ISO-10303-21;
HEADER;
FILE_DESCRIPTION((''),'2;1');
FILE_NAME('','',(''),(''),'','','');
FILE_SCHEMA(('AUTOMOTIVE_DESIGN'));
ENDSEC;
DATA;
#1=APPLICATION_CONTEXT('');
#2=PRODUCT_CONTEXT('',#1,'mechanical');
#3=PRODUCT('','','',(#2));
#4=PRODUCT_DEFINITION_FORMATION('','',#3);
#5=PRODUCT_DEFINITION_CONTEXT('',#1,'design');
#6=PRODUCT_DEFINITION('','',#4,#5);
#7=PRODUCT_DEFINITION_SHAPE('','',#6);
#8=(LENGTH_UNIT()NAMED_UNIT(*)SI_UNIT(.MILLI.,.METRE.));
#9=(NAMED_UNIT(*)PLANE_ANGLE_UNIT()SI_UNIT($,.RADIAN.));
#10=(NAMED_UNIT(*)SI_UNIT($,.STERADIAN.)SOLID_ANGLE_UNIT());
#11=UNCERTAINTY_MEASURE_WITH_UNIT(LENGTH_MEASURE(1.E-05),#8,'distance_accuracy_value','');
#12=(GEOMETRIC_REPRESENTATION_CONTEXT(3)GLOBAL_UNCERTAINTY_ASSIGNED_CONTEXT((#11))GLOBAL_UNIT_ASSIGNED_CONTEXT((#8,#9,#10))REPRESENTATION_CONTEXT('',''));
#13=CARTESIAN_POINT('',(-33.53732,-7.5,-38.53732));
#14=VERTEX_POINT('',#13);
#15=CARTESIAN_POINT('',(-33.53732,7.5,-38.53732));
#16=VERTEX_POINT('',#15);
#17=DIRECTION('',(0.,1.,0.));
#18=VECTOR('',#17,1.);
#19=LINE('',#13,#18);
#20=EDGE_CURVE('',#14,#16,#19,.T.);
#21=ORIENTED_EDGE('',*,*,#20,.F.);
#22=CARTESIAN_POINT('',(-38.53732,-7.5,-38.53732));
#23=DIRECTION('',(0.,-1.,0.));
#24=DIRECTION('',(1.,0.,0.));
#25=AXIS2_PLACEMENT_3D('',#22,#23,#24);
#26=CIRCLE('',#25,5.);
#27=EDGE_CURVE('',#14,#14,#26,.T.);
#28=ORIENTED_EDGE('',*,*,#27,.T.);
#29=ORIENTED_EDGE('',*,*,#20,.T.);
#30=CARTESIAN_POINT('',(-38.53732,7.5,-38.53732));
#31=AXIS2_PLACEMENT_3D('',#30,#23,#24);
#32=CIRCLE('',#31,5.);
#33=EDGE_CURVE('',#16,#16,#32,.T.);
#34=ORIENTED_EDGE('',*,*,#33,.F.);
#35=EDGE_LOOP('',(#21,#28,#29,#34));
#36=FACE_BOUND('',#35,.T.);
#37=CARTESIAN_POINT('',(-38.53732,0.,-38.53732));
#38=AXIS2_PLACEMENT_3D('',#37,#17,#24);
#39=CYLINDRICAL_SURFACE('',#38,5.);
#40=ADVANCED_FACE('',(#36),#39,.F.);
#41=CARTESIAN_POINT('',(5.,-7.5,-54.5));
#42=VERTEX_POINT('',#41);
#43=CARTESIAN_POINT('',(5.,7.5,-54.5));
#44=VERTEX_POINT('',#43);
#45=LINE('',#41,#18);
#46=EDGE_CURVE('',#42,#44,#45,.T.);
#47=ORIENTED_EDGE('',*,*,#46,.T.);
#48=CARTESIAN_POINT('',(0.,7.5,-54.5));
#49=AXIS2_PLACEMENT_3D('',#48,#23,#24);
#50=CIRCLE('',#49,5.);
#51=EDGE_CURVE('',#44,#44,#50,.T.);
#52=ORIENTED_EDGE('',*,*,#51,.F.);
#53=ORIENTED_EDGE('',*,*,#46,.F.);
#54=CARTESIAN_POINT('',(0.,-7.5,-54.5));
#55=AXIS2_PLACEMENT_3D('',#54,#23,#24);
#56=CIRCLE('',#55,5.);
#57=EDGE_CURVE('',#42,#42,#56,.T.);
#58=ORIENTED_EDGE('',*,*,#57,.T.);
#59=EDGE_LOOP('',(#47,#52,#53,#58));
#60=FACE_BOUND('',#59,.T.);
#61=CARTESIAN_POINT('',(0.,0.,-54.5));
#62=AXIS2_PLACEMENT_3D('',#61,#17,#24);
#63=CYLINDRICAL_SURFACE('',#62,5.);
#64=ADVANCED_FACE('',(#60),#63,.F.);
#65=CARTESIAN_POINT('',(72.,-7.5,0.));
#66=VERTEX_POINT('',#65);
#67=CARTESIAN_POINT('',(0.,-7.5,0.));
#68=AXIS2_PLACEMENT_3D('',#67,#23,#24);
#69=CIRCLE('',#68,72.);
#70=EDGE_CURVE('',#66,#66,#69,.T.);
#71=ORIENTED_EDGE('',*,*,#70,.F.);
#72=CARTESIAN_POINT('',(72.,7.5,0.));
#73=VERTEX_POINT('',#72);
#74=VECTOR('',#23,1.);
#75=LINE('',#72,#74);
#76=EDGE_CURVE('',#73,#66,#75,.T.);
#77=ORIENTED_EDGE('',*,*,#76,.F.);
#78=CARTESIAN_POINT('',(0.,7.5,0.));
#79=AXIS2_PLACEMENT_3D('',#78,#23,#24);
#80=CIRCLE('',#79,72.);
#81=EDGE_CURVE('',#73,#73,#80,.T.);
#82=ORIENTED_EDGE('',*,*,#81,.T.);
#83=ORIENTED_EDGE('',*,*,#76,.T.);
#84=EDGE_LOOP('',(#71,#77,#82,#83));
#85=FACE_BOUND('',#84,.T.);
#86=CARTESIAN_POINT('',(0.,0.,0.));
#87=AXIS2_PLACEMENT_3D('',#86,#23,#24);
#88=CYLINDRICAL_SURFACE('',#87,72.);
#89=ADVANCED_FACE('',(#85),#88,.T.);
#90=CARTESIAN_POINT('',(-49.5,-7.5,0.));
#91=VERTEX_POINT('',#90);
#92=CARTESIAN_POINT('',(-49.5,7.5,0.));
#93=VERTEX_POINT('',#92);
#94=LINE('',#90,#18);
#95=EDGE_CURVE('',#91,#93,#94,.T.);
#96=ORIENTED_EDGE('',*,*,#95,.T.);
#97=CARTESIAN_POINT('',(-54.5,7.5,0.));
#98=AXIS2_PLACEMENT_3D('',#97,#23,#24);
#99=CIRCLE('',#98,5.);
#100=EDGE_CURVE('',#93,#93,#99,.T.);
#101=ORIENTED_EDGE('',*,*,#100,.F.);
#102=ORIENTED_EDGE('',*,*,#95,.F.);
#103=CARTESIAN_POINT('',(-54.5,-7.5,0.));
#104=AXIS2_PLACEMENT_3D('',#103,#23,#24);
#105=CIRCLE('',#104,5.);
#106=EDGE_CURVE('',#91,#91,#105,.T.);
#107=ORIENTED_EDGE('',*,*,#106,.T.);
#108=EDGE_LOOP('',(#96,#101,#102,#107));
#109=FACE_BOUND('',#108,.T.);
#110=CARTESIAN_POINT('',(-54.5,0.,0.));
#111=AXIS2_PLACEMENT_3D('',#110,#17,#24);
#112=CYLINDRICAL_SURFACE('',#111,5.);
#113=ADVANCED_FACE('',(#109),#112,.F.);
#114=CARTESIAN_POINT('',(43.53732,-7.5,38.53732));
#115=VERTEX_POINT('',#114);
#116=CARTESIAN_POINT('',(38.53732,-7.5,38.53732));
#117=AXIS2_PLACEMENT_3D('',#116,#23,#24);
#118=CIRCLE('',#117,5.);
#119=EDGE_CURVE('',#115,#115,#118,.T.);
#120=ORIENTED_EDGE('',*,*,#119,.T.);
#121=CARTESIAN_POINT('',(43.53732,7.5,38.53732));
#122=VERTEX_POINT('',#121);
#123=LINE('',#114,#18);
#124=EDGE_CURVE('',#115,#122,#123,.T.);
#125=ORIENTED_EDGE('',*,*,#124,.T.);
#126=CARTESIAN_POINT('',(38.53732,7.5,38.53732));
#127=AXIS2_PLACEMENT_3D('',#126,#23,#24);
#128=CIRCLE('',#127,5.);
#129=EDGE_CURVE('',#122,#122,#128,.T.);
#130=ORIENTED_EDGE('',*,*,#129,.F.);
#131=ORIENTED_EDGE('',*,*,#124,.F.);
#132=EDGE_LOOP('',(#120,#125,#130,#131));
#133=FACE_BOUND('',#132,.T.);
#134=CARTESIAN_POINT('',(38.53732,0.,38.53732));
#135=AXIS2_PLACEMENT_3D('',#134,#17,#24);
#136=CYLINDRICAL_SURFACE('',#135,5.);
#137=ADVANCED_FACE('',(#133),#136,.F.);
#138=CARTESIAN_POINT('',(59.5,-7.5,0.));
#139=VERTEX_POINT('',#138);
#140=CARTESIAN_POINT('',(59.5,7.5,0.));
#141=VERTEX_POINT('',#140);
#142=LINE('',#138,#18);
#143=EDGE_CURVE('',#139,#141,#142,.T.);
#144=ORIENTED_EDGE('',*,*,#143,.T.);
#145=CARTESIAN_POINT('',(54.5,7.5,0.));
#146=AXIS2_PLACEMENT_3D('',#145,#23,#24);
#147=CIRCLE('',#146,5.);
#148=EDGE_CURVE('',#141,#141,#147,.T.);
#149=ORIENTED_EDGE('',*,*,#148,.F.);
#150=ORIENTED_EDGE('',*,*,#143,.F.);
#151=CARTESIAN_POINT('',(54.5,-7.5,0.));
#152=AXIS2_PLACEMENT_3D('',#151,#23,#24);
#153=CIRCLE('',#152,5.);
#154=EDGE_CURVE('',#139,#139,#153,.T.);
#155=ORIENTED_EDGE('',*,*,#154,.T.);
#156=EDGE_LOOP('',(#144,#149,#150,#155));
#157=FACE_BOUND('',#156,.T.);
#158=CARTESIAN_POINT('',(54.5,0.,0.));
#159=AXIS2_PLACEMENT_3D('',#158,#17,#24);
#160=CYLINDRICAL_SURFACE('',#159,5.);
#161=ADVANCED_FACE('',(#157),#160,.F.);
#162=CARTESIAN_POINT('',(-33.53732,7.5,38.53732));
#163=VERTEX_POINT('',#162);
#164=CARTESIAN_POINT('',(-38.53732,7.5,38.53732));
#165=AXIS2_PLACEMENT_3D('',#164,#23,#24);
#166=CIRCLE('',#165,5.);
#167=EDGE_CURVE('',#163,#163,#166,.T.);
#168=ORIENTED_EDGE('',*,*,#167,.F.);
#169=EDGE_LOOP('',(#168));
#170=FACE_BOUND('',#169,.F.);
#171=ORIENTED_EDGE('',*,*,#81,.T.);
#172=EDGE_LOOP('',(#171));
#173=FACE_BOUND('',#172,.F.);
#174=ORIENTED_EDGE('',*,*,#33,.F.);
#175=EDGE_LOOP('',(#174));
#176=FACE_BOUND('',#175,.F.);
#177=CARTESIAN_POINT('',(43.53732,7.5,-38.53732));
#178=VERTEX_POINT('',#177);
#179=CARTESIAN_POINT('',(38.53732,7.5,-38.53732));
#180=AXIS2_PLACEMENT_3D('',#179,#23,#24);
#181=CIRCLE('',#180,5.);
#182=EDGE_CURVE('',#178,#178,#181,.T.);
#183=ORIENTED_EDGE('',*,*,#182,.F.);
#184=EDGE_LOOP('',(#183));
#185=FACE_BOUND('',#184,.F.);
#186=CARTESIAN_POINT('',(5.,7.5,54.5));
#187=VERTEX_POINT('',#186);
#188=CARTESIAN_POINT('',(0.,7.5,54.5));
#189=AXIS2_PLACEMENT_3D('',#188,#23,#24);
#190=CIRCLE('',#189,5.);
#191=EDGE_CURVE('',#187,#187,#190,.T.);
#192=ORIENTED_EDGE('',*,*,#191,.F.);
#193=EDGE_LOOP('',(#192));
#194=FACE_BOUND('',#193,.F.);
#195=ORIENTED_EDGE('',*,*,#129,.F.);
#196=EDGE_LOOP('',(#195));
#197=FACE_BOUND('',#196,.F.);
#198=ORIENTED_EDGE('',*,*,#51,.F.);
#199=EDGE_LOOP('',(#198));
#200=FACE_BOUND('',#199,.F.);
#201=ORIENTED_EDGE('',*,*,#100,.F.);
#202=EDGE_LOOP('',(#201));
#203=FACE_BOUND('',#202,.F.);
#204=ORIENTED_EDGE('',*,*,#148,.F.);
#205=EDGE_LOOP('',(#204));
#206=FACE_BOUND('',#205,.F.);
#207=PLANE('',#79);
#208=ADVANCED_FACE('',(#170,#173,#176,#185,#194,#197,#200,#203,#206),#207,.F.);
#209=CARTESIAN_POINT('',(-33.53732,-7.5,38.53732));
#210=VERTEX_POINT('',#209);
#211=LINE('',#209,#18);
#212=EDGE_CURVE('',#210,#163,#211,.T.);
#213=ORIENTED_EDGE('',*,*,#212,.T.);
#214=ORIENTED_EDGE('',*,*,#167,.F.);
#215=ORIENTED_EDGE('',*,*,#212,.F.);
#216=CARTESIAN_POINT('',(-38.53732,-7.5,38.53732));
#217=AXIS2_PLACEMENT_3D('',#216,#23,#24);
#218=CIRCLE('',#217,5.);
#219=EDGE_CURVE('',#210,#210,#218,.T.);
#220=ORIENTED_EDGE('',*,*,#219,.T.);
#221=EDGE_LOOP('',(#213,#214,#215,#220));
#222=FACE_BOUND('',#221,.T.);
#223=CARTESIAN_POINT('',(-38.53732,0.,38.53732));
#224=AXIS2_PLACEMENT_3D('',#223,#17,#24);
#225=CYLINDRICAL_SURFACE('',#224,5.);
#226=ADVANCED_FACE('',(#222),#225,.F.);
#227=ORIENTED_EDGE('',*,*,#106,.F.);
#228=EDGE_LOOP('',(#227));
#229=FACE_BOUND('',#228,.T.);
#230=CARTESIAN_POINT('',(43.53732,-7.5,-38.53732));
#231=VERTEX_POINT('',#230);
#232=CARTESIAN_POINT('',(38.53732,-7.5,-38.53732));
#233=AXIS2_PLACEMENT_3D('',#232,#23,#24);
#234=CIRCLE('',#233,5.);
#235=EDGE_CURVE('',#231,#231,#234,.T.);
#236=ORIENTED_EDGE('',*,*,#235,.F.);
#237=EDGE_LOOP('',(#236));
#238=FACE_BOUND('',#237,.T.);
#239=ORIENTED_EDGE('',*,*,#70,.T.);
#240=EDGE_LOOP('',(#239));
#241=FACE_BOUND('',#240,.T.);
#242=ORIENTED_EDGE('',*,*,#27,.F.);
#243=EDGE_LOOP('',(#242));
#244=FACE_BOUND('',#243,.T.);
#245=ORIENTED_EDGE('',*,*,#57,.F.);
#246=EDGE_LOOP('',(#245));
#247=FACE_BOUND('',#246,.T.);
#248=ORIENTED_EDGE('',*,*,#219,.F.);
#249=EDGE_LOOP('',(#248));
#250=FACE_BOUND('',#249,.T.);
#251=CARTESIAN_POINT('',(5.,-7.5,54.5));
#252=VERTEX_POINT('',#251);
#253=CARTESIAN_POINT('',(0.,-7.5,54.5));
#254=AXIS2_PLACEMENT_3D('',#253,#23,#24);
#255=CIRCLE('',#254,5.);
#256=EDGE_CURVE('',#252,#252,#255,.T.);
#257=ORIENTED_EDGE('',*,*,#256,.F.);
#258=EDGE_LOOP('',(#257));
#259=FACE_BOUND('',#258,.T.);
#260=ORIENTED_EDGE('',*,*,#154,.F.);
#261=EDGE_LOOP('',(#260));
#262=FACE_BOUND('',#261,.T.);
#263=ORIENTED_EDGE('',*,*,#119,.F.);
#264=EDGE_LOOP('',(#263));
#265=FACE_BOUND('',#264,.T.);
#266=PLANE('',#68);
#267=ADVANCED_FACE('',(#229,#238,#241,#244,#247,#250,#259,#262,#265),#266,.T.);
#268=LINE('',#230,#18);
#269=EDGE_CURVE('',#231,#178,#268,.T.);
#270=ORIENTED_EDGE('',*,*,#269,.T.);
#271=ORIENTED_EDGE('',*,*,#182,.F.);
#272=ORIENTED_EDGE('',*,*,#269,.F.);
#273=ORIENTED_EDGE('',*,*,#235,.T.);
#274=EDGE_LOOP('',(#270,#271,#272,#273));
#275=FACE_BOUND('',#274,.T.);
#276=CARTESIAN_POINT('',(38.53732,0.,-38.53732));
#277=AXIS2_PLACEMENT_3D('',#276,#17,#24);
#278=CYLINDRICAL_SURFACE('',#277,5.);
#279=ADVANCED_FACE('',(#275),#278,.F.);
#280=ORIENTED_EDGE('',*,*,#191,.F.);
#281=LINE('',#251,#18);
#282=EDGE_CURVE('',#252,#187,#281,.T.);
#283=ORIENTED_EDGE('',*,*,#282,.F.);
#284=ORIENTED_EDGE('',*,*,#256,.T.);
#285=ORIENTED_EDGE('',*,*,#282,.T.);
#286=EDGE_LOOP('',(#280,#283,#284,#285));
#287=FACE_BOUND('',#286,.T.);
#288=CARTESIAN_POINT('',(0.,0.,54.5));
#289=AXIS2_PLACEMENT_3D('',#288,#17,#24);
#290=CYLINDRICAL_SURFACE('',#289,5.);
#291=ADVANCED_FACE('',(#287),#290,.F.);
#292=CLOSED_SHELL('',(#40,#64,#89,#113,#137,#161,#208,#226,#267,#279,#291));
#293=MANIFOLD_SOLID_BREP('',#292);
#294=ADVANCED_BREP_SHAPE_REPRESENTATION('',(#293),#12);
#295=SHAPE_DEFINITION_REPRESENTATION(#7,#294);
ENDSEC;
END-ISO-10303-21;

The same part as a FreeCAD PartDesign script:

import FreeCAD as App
import Part
import Sketcher

V = App.Vector

doc = App.newDocument("Part")
params = doc.addObject("Spreadsheet::Sheet", "Params")
for row, (alias, value) in enumerate([
    ("sketch1_diameter", "144 mm"),
    ("sketch1_diameter2", "10 mm"),
    ("pad1_length", "15 mm"),
], start=1):
    params.set(f"A{row}", alias)
    params.set(f"B{row}", "=" + value)
    params.setAlias(f"B{row}", alias)

body = doc.addObject("PartDesign::Body", "Body")

sketch1 = body.newObject("Sketcher::SketchObject", "Sketch")
sketch1.AttachmentSupport = (doc.getObject("XZ_Plane"), [""])
sketch1.MapMode = "FlatFace"
sketch1.addGeometry(Part.Circle(V(0, 0, 0), V(0, 0, 1), 72), False)
sketch1.addGeometry(Part.Circle(V(-39, -39, 0), V(0, 0, 1), 5), False)
sketch1.addGeometry(Part.Circle(V(0, -54, 0), V(0, 0, 1), 5), False)
sketch1.addGeometry(Part.Circle(V(39, -39, 0), V(0, 0, 1), 5), False)
sketch1.addGeometry(Part.Circle(V(-54, 0, 0), V(0, 0, 1), 5), False)
sketch1.addGeometry(Part.Circle(V(-39, 39, 0), V(0, 0, 1), 5), False)
sketch1.addGeometry(Part.Circle(V(54, 0, 0), V(0, 0, 1), 5), False)
sketch1.addGeometry(Part.Circle(V(0, 54, 0), V(0, 0, 1), 5), False)
sketch1.addGeometry(Part.Circle(V(39, 39, 0), V(0, 0, 1), 5), False)
sketch1.addConstraint(Sketcher.Constraint("Coincident", 0, 3, -1, 1))
sketch1.addConstraint(Sketcher.Constraint("Equal", 1, 2))
sketch1.addConstraint(Sketcher.Constraint("Equal", 2, 3))
sketch1.addConstraint(Sketcher.Constraint("Equal", 3, 4))
sketch1.addConstraint(Sketcher.Constraint("Equal", 4, 5))
sketch1.addConstraint(Sketcher.Constraint("Equal", 5, 6))
sketch1.addConstraint(Sketcher.Constraint("Equal", 6, 7))
sketch1.addConstraint(Sketcher.Constraint("Equal", 7, 8))
sketch1.addConstraint(Sketcher.Constraint("Symmetric", 3, 3, 5, 3, -1, 1))
sketch1.addConstraint(Sketcher.Constraint("Symmetric", 4, 3, 6, 3, -1, 1))
sketch1.addConstraint(Sketcher.Constraint("Symmetric", 2, 3, 7, 3, -1, 1))
sketch1.addConstraint(Sketcher.Constraint("Symmetric", 1, 3, 8, 3, -1, 1))
sketch1.addConstraint(Sketcher.Constraint("Symmetric", 1, 3, 3, 3, -2))
sketch1.addConstraint(Sketcher.Constraint("PointOnObject", 2, 3, -2))
sketch1.addConstraint(Sketcher.Constraint("PointOnObject", 4, 3, -1))
sketch1.addConstraint(Sketcher.Constraint("Diameter", 0, 144.0))
sketch1.addConstraint(Sketcher.Constraint("Diameter", 1, 10.0))
sketch1.addConstraint(Sketcher.Constraint("DistanceY", 2, 3, -1, 1, 54.5))
sketch1.addConstraint(Sketcher.Constraint("DistanceX", 4, 3, -1, 1, 54.5))
sketch1.addConstraint(Sketcher.Constraint("DistanceX", 1, 3, -1, 1, 38.53732))
sketch1.addConstraint(Sketcher.Constraint("DistanceY", 1, 3, -1, 1, 38.53732))
sketch1.setExpression("Constraints[15]", "Params.sketch1_diameter")
sketch1.setExpression("Constraints[16]", "Params.sketch1_diameter2")
pad1 = body.newObject("PartDesign::Pad", "Pad")
pad1.Profile = sketch1
pad1.setExpression("Length", "Params.pad1_length")
pad1.Midplane = True

doc.recompute()
